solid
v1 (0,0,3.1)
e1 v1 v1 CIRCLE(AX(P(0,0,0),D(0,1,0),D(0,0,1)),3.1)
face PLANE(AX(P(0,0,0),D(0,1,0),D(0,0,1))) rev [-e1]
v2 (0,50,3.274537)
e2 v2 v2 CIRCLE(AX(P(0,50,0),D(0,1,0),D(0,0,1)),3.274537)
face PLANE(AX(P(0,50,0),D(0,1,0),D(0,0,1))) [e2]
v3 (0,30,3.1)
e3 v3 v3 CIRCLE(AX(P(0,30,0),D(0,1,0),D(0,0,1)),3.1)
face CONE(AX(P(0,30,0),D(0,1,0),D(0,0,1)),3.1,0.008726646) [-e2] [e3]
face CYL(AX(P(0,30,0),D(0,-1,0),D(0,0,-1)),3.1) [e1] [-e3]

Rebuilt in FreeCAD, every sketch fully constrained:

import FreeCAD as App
import Part
import Sketcher

doc = App.newDocument("Part")
body = doc.addObject("PartDesign::Body", "Body")

# Sketch on XZ plane
sketch1 = body.newObject("Sketcher::SketchObject", "Sketch")
sketch1.AttachmentSupport = (doc.getObject("XZ_Plane"), [""])
sketch1.MapMode = "FlatFace"
sketch1.addGeometry(Part.Circle(App.Vector(0, 0, 0), App.Vector(0, 0, 1), 3.1), False)
sketch1.addConstraint(Sketcher.Constraint("Coincident", 0, 3, -1, 1))
sketch1.addConstraint(Sketcher.Constraint("Diameter", 0, 6.2))
pad1 = body.newObject("PartDesign::Pad", "Pad")
pad1.Profile = sketch1
pad1.Length = 30
pad1.Reversed = True

# Sketch on XZ plane
sketch2 = body.newObject("Sketcher::SketchObject", "Sketch001")
sketch2.AttachmentSupport = (doc.getObject("XZ_Plane"), [""])
sketch2.MapMode = "FlatFace"
sketch2.AttachmentOffset = App.Placement(App.Vector(0, 0, -30), App.Rotation())
sketch2.addGeometry(Part.Circle(App.Vector(0, 0, 0), App.Vector(0, 0, 1), 3.1), False)
sketch2.addConstraint(Sketcher.Constraint("Coincident", 0, 3, -1, 1))
sketch2.addConstraint(Sketcher.Constraint("Diameter", 0, 6.2))
pad2 = body.newObject("PartDesign::Pad", "Pad001")
pad2.Profile = sketch2
pad2.Length = 20
pad2.Reversed = True
pad2.TaperAngle = 0.5

doc.recompute()
